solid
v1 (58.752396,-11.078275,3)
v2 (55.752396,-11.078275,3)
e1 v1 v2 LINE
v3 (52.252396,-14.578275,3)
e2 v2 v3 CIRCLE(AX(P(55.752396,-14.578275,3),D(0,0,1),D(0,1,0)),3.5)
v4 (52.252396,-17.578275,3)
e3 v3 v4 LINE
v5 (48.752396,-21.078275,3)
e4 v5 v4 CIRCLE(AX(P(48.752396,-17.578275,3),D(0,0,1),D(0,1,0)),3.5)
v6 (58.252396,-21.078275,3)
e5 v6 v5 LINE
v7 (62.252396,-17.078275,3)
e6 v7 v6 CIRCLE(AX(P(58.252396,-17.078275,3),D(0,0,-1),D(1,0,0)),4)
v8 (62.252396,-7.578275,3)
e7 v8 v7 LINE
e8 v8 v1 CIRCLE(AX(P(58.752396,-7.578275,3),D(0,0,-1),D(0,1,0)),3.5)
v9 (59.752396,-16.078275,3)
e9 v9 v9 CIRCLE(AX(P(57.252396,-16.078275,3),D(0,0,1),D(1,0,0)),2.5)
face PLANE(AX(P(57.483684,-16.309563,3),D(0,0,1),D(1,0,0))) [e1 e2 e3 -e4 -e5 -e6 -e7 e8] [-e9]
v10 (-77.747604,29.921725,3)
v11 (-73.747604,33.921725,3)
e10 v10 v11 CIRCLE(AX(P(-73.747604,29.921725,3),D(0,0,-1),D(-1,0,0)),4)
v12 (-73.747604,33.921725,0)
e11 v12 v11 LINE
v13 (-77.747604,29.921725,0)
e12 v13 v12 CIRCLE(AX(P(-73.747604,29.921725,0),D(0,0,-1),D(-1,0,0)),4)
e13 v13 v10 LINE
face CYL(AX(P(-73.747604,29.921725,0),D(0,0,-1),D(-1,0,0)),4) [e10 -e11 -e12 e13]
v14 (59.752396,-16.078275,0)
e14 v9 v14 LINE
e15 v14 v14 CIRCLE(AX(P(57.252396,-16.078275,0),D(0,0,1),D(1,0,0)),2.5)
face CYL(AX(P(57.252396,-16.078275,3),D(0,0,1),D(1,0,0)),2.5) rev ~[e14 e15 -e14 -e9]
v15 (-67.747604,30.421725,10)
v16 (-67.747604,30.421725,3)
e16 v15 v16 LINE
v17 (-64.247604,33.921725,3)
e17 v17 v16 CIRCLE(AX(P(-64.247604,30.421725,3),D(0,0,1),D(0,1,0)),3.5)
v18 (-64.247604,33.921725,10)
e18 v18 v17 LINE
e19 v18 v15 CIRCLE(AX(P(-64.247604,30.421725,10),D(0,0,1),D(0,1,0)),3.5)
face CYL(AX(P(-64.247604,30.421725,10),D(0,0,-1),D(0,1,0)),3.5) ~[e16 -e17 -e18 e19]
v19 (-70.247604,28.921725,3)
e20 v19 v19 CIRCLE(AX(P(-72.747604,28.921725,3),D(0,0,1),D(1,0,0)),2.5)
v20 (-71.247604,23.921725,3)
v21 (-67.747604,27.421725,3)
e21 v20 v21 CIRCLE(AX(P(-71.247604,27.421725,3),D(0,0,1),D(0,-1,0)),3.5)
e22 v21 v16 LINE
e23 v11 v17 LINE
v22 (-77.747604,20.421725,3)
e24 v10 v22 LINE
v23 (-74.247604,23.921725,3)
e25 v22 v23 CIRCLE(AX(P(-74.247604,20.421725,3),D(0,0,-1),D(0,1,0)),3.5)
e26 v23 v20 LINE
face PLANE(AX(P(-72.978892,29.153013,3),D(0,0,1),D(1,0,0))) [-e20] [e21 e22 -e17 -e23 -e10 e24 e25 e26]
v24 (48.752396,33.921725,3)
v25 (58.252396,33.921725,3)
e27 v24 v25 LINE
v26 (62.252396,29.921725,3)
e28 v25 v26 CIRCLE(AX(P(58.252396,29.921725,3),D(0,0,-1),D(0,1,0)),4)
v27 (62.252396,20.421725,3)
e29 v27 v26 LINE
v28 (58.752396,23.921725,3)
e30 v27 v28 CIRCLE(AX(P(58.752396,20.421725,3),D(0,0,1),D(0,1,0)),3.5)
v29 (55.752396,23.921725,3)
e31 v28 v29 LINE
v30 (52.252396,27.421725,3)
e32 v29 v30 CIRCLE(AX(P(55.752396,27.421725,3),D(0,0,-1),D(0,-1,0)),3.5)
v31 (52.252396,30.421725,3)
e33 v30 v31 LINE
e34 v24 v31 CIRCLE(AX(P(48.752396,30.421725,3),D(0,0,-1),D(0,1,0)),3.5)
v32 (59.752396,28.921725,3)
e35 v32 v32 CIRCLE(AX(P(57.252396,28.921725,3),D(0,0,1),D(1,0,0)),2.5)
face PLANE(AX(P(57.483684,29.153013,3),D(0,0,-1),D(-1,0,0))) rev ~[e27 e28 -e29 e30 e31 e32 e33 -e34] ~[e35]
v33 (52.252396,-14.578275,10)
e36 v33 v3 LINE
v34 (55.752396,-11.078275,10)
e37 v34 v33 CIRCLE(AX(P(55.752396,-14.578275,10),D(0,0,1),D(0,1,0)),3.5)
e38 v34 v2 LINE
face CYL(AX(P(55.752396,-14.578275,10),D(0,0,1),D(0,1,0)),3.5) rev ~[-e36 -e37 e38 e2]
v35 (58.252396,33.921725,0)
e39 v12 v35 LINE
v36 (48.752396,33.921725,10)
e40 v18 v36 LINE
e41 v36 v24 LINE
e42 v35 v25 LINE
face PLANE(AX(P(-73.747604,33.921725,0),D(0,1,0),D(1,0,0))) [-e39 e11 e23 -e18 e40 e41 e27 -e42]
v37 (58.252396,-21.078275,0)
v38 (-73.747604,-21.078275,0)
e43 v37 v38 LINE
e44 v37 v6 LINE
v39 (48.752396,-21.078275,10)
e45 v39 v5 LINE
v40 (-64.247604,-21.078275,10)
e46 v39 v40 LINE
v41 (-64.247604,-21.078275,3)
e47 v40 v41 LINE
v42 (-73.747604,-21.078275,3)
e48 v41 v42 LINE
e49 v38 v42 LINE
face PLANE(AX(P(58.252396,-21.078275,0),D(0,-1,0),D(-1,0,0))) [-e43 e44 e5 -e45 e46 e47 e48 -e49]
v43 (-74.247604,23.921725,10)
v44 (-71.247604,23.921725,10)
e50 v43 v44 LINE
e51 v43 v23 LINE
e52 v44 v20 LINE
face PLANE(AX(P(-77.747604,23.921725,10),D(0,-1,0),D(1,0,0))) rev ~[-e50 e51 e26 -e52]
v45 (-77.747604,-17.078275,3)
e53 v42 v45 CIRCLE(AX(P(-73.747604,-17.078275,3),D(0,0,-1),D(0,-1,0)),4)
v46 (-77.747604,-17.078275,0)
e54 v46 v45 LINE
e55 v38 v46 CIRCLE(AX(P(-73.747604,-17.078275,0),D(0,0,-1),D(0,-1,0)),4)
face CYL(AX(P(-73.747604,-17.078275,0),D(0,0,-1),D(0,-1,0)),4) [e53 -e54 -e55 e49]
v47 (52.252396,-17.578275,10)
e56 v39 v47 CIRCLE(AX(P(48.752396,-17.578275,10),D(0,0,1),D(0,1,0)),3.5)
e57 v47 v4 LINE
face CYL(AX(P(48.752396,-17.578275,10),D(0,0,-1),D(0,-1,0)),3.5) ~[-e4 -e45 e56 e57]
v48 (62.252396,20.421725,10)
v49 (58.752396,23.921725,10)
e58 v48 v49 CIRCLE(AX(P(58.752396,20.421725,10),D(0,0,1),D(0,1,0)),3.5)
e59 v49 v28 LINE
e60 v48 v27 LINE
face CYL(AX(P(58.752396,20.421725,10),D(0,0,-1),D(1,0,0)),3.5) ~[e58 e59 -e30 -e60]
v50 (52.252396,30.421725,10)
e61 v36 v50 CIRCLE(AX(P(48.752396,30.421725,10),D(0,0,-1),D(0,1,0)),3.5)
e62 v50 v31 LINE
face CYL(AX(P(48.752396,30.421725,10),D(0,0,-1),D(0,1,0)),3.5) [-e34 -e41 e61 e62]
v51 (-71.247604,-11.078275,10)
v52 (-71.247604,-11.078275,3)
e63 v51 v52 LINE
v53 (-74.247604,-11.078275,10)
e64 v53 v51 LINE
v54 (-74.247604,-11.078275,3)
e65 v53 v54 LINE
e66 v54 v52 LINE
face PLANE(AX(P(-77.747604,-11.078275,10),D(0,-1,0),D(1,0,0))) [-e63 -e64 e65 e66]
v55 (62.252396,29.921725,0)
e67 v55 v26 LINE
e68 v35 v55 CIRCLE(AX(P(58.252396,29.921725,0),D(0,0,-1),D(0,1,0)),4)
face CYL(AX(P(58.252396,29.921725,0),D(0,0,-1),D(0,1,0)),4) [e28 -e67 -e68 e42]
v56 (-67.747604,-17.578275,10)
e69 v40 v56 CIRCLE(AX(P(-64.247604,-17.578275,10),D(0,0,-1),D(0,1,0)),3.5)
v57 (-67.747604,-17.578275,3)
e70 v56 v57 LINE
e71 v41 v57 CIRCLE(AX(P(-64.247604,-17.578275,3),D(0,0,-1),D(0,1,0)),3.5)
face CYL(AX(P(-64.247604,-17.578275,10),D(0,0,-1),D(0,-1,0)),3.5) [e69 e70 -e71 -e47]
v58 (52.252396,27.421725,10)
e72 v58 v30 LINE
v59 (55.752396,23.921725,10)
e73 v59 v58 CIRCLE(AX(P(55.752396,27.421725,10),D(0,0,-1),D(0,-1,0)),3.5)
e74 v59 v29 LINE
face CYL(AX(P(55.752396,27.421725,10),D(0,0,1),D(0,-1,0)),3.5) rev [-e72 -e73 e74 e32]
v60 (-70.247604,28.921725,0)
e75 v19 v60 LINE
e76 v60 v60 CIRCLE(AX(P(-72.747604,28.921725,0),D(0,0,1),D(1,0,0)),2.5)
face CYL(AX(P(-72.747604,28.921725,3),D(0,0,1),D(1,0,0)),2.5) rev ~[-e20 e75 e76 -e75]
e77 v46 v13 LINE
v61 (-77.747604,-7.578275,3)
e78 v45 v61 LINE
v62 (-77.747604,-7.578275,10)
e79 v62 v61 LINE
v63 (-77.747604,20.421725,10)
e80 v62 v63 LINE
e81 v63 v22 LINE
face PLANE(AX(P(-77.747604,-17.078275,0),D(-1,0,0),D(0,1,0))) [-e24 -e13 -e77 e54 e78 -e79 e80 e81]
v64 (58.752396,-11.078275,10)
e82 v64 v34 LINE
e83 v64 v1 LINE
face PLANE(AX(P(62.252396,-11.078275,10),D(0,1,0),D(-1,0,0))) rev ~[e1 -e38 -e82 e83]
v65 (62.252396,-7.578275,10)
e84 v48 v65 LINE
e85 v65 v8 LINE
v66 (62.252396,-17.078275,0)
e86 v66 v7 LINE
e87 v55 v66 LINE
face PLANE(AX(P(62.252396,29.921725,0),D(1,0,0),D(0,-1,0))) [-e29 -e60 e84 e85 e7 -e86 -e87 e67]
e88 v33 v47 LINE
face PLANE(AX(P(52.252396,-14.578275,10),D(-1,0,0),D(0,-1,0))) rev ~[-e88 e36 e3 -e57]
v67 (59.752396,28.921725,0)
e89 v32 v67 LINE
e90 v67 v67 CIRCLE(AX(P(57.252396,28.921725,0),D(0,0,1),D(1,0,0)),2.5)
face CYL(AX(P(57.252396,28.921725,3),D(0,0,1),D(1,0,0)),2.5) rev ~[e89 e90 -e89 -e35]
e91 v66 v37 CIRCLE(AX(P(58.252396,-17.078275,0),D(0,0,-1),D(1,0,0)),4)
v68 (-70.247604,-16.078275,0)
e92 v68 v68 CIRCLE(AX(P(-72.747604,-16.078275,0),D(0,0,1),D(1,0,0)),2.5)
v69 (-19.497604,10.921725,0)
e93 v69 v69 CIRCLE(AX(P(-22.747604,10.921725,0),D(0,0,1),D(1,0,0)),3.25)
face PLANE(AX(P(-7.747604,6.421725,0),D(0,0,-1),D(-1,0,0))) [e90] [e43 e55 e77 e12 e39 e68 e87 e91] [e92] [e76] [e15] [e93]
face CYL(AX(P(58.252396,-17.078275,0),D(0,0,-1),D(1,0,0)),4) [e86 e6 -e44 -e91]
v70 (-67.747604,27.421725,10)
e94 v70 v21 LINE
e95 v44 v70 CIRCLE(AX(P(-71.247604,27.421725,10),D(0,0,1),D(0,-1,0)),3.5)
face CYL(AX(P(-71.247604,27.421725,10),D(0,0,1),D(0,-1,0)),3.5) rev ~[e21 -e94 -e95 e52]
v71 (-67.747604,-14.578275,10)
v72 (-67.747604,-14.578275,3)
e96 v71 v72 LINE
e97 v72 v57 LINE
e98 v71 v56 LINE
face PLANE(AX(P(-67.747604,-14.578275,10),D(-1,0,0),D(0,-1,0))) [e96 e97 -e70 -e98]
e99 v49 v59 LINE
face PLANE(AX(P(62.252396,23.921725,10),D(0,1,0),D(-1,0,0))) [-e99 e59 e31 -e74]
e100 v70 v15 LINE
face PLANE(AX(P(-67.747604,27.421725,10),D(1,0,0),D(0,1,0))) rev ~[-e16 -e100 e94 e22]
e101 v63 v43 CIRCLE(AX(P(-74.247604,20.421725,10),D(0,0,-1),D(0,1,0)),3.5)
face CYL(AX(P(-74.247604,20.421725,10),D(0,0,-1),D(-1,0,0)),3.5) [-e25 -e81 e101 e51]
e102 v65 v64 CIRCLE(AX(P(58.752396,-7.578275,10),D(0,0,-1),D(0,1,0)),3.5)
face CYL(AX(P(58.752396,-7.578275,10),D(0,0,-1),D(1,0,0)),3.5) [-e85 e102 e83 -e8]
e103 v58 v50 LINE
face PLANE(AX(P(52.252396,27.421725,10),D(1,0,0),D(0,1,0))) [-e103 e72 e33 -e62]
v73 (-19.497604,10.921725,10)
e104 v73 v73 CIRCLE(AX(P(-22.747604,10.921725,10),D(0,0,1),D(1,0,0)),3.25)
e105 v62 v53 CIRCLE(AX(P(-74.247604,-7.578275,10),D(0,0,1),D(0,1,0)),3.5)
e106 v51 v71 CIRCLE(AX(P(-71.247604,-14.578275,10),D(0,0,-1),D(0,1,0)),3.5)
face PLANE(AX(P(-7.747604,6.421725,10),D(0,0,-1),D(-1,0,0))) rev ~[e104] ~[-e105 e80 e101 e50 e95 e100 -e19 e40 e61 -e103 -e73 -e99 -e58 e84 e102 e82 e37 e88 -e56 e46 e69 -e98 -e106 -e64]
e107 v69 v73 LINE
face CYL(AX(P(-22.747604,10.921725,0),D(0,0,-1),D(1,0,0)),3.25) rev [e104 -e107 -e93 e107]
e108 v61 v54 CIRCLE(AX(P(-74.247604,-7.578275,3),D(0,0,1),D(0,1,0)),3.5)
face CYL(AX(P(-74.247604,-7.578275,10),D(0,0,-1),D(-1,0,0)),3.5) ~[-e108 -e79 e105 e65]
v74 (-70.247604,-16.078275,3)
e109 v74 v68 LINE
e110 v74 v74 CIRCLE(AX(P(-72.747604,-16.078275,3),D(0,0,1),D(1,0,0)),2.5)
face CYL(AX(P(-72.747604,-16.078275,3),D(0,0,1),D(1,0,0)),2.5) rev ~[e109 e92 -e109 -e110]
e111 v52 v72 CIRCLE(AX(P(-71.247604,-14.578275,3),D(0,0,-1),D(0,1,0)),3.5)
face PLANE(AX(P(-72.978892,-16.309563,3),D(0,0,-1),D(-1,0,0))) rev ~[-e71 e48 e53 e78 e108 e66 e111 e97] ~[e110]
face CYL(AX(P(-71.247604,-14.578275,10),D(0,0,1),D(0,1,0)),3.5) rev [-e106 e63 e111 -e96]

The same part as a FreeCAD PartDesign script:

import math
import FreeCAD as App
import Part
import Sketcher

V = App.Vector
Q = App.Units.Quantity


def edges_at(feature, points):
    """Names of the edges that pass closest to the given points."""
    edges = feature.Shape.Edges
    near = lambda p: min(range(len(edges)), key=lambda i: edges[i].distToShape(Part.Vertex(*p))[0])
    return sorted({f"Edge{near(p) + 1}" for p in points})

doc = App.newDocument("Part")
body = doc.addObject("PartDesign::Body", "Body")

# Sketch on XY plane
sketch1 = body.newObject("Sketcher::SketchObject", "Sketch")
sketch1.AttachmentSupport = (doc.getObject("XY_Plane"), [""])
sketch1.MapMode = "FlatFace"
sketch1.addGeometry([
    Part.LineSegment(V(58.252396, 33.921725, 0), V(-73.747604, 33.921725, 0)),  # 0
    Part.ArcOfCircle(Part.Circle(V(-73.747604, 29.921725, 0), V(0, 0, 1), 4), math.radians(90), math.radians(180)),  # 1
    Part.LineSegment(V(-77.747604, 29.921725, 0), V(-77.747604, -17.078275, 0)),  # 2
    Part.ArcOfCircle(Part.Circle(V(-73.747604, -17.078275, 0), V(0, 0, 1), 4), math.radians(180), math.radians(270)),  # 3
    Part.LineSegment(V(-73.747604, -21.078275, 0), V(58.252396, -21.078275, 0)),  # 4
    Part.ArcOfCircle(Part.Circle(V(58.252396, -17.078275, 0), V(0, 0, 1), 4), math.radians(-90), math.radians(0)),  # 5
    Part.LineSegment(V(62.252396, -17.078275, 0), V(62.252396, 29.921725, 0)),  # 6
    Part.ArcOfCircle(Part.Circle(V(58.252396, 29.921725, 0), V(0, 0, 1), 4), math.radians(0), math.radians(90)),  # 7
    Part.Circle(V(-22.747604, 10.921725, 0), V(0, 0, 1), 3.25),  # 8
], False)
sketch1.addConstraint([
    Sketcher.Constraint("Tangent", 0, 2, 1, 1),
    Sketcher.Constraint("Tangent", 1, 2, 2, 1),
    Sketcher.Constraint("Tangent", 2, 2, 3, 1),
    Sketcher.Constraint("Tangent", 3, 2, 4, 1),
    Sketcher.Constraint("Tangent", 4, 2, 5, 1),
    Sketcher.Constraint("Tangent", 5, 2, 6, 1),
    Sketcher.Constraint("Tangent", 6, 2, 7, 1),
    Sketcher.Constraint("Tangent", 7, 2, 0, 1),
    Sketcher.Constraint("Horizontal", 0),
    Sketcher.Constraint("Vertical", 2),
    Sketcher.Constraint("Horizontal", 4),
    Sketcher.Constraint("Vertical", 6),
    Sketcher.Constraint("Equal", 1, 3),
    Sketcher.Constraint("Equal", 3, 5),
    Sketcher.Constraint("Equal", 5, 7),
    Sketcher.Constraint("Radius", 1, Q("4 mm")),
    Sketcher.Constraint("Diameter", 8, Q("6.5 mm")),
    Sketcher.Constraint("DistanceX", 0, 2, 0, 1, Q("132 mm")),
    Sketcher.Constraint("DistanceY", 2, 2, 2, 1, Q("47 mm")),
    Sketcher.Constraint("DistanceX", 1, 3, 8, 3, Q("51 mm")),
    Sketcher.Constraint("DistanceY", 8, 3, 1, 3, Q("19 mm")),
    Sketcher.Constraint("DistanceX", 1, 3, -1, 1, Q("73.747604 mm")),
    Sketcher.Constraint("DistanceY", -1, 1, 1, 3, Q("29.921725 mm")),
])
pad1 = body.newObject("PartDesign::Pad", "Pad")
pad1.Profile = sketch1
pad1.Length = 10

# Sketch on XY plane
sketch2 = body.newObject("Sketcher::SketchObject", "Sketch001")
sketch2.AttachmentSupport = (doc.getObject("XY_Plane"), [""])
sketch2.MapMode = "FlatFace"
sketch2.AttachmentOffset = App.Placement(V(0, 0, 10), App.Rotation())
sketch2.addGeometry([
    Part.LineSegment(V(-77.747604, 23.921725, 0), V(-71.247604, 23.921725, 0)),  # 0
    Part.ArcOfCircle(Part.Circle(V(-71.247604, 27.421725, 0), V(0, 0, 1), 3.5), math.radians(-90), math.radians(0)),  # 1
    Part.LineSegment(V(-67.747604, 27.421725, 0), V(-67.747604, 33.921725, 0)),  # 2
    Part.LineSegment(V(-67.747604, 33.921725, 0), V(-77.747604, 33.921725, 0)),  # 3
    Part.LineSegment(V(-77.747604, 33.921725, 0), V(-77.747604, 23.921725, 0)),  # 4
    Part.LineSegment(V(-71.247604, -11.078275, 0), V(-77.747604, -11.078275, 0)),  # 5
    Part.LineSegment(V(-77.747604, -11.078275, 0), V(-77.747604, -21.078275, 0)),  # 6
    Part.LineSegment(V(-77.747604, -21.078275, 0), V(-67.747604, -21.078275, 0)),  # 7
    Part.LineSegment(V(-67.747604, -21.078275, 0), V(-67.747604, -14.578275, 0)),  # 8
    Part.ArcOfCircle(Part.Circle(V(-71.247604, -14.578275, 0), V(0, 0, 1), 3.5), math.radians(0), math.radians(90)),  # 9
    Part.LineSegment(V(52.252396, -21.078275, 0), V(62.252396, -21.078275, 0)),  # 10
    Part.LineSegment(V(62.252396, -21.078275, 0), V(62.252396, -11.078275, 0)),  # 11
    Part.LineSegment(V(62.252396, -11.078275, 0), V(55.752396, -11.078275, 0)),  # 12
    Part.ArcOfCircle(Part.Circle(V(55.752396, -14.578275, 0), V(0, 0, 1), 3.5), math.radians(90), math.radians(180)),  # 13
    Part.LineSegment(V(52.252396, -14.578275, 0), V(52.252396, -21.078275, 0)),  # 14
    Part.LineSegment(V(55.752396, 23.921725, 0), V(62.252396, 23.921725, 0)),  # 15
    Part.LineSegment(V(62.252396, 23.921725, 0), V(62.252396, 33.921725, 0)),  # 16
    Part.LineSegment(V(62.252396, 33.921725, 0), V(52.252396, 33.921725, 0)),  # 17
    Part.LineSegment(V(52.252396, 33.921725, 0), V(52.252396, 27.421725, 0)),  # 18
    Part.ArcOfCircle(Part.Circle(V(55.752396, 27.421725, 0), V(0, 0, 1), 3.5), math.radians(180), math.radians(270)),  # 19
], False)
sketch2.addConstraint([
    Sketcher.Constraint("Tangent", 0, 2, 1, 1),
    Sketcher.Constraint("Tangent", 1, 2, 2, 1),
    Sketcher.Constraint("Coincident", 2, 2, 3, 1),
    Sketcher.Constraint("Coincident", 3, 2, 4, 1),
    Sketcher.Constraint("Coincident", 4, 2, 0, 1),
    Sketcher.Constraint("Coincident", 5, 2, 6, 1),
    Sketcher.Constraint("Coincident", 6, 2, 7, 1),
    Sketcher.Constraint("Coincident", 7, 2, 8, 1),
    Sketcher.Constraint("Tangent", 8, 2, 9, 1),
    Sketcher.Constraint("Tangent", 9, 2, 5, 1),
    Sketcher.Constraint("Coincident", 10, 2, 11, 1),
    Sketcher.Constraint("Coincident", 11, 2, 12, 1),
    Sketcher.Constraint("Tangent", 12, 2, 13, 1),
    Sketcher.Constraint("Tangent", 13, 2, 14, 1),
    Sketcher.Constraint("Coincident", 14, 2, 10, 1),
    Sketcher.Constraint("Coincident", 15, 2, 16, 1),
    Sketcher.Constraint("Coincident", 16, 2, 17, 1),
    Sketcher.Constraint("Coincident", 17, 2, 18, 1),
    Sketcher.Constraint("Tangent", 18, 2, 19, 1),
    Sketcher.Constraint("Tangent", 19, 2, 15, 1),
    Sketcher.Constraint("Horizontal", 0),
    Sketcher.Constraint("Vertical", 2),
    Sketcher.Constraint("Horizontal", 3),
    Sketcher.Constraint("Vertical", 4),
    Sketcher.Constraint("Horizontal", 5),
    Sketcher.Constraint("Vertical", 6),
    Sketcher.Constraint("Horizontal", 7),
    Sketcher.Constraint("Vertical", 8),
    Sketcher.Constraint("Horizontal", 10),
    Sketcher.Constraint("Vertical", 11),
    Sketcher.Constraint("Horizontal", 12),
    Sketcher.Constraint("Vertical", 14),
    Sketcher.Constraint("Horizontal", 15),
    Sketcher.Constraint("Vertical", 16),
    Sketcher.Constraint("Horizontal", 17),
    Sketcher.Constraint("Vertical", 18),
    Sketcher.Constraint("Equal", 1, 9),
    Sketcher.Constraint("Equal", 9, 13),
    Sketcher.Constraint("Equal", 13, 19),
    Sketcher.Constraint("Horizontal", 9, 3, 13, 3),
    Sketcher.Constraint("Horizontal", 1, 3, 19, 3),
    Sketcher.Constraint("Horizontal", 7, 2, 10, 2),
    Sketcher.Constraint("Horizontal", 3, 2, 16, 2),
    Sketcher.Constraint("Vertical", 1, 3, 9, 3),
    Sketcher.Constraint("Vertical", 13, 3, 19, 3),
    Sketcher.Constraint("Vertical", 4, 2, 5, 2),
    Sketcher.Constraint("Vertical", 11, 2, 15, 2),
    Sketcher.Constraint("Equal", 7, 10),
    Sketcher.Constraint("Equal", 15, 2),
    Sketcher.Constraint("Equal", 4, 6),
    Sketcher.Constraint("Radius", 1, Q("3.5 mm")),
    Sketcher.Constraint("DistanceX", 3, 2, 3, 1, Q("10 mm")),
    Sketcher.Constraint("DistanceY", 9, 3, 1, 3, Q("42 mm")),
    Sketcher.Constraint("DistanceX", 9, 3, 13, 3, Q("127 mm")),
    Sketcher.Constraint("DistanceX", 1, 3, -1, 1, Q("71.247604 mm")),
    Sketcher.Constraint("DistanceY", -1, 1, 1, 3, Q("27.421725 mm")),
])
pocket1 = body.newObject("PartDesign::Pocket", "Pocket")
pocket1.Profile = sketch2
pocket1.Length = 7

# Sketch on XY plane
sketch3 = body.newObject("Sketcher::SketchObject", "Sketch002")
sketch3.AttachmentSupport = (doc.getObject("XY_Plane"), [""])
sketch3.MapMode = "FlatFace"
sketch3.AttachmentOffset = App.Placement(V(0, 0, 3), App.Rotation())
sketch3.addGeometry([
    Part.Circle(V(-72.747604, 28.921725, 0), V(0, 0, 1), 2.5),
    Part.Circle(V(57.252396, 28.921725, 0), V(0, 0, 1), 2.5),
    Part.Circle(V(57.252396, -16.078275, 0), V(0, 0, 1), 2.5),
    Part.Circle(V(-72.747604, -16.078275, 0), V(0, 0, 1), 2.5),
], False)
sketch3.addConstraint([
    Sketcher.Constraint("Equal", 0, 1),
    Sketcher.Constraint("Equal", 1, 2),
    Sketcher.Constraint("Equal", 2, 3),
    Sketcher.Constraint("Horizontal", 0, 3, 1, 3),
    Sketcher.Constraint("Horizontal", 2, 3, 3, 3),
    Sketcher.Constraint("Vertical", 1, 3, 2, 3),
    Sketcher.Constraint("Vertical", 0, 3, 3, 3),
    Sketcher.Constraint("Diameter", 0, Q("5 mm")),
    Sketcher.Constraint("DistanceX", 0, 3, 1, 3, Q("130 mm")),
    Sketcher.Constraint("DistanceY", 2, 3, 1, 3, Q("45 mm")),
    Sketcher.Constraint("DistanceX", 0, 3, -1, 1, Q("72.747604 mm")),
    Sketcher.Constraint("DistanceY", -1, 1, 0, 3, Q("28.921725 mm")),
])
pocket2 = body.newObject("PartDesign::Pocket", "Pocket001")
pocket2.Profile = sketch3
pocket2.Length = 10
doc.recompute()

fillet = body.newObject("PartDesign::Fillet", "Fillet")
fillet.Base = (pocket2, edges_at(pocket2, [
    (52.252, 33.922, 6.5),
    (62.252, 23.922, 6.5),
    (62.252, -11.078, 6.5),
    (52.252, -21.078, 6.5),
    (-67.748, -21.078, 6.5),
    (-77.748, -11.078, 6.5),
    (-77.748, 23.922, 6.5),
    (-67.748, 33.922, 6.5),
]))
fillet.Radius = 3.5

doc.recompute()
